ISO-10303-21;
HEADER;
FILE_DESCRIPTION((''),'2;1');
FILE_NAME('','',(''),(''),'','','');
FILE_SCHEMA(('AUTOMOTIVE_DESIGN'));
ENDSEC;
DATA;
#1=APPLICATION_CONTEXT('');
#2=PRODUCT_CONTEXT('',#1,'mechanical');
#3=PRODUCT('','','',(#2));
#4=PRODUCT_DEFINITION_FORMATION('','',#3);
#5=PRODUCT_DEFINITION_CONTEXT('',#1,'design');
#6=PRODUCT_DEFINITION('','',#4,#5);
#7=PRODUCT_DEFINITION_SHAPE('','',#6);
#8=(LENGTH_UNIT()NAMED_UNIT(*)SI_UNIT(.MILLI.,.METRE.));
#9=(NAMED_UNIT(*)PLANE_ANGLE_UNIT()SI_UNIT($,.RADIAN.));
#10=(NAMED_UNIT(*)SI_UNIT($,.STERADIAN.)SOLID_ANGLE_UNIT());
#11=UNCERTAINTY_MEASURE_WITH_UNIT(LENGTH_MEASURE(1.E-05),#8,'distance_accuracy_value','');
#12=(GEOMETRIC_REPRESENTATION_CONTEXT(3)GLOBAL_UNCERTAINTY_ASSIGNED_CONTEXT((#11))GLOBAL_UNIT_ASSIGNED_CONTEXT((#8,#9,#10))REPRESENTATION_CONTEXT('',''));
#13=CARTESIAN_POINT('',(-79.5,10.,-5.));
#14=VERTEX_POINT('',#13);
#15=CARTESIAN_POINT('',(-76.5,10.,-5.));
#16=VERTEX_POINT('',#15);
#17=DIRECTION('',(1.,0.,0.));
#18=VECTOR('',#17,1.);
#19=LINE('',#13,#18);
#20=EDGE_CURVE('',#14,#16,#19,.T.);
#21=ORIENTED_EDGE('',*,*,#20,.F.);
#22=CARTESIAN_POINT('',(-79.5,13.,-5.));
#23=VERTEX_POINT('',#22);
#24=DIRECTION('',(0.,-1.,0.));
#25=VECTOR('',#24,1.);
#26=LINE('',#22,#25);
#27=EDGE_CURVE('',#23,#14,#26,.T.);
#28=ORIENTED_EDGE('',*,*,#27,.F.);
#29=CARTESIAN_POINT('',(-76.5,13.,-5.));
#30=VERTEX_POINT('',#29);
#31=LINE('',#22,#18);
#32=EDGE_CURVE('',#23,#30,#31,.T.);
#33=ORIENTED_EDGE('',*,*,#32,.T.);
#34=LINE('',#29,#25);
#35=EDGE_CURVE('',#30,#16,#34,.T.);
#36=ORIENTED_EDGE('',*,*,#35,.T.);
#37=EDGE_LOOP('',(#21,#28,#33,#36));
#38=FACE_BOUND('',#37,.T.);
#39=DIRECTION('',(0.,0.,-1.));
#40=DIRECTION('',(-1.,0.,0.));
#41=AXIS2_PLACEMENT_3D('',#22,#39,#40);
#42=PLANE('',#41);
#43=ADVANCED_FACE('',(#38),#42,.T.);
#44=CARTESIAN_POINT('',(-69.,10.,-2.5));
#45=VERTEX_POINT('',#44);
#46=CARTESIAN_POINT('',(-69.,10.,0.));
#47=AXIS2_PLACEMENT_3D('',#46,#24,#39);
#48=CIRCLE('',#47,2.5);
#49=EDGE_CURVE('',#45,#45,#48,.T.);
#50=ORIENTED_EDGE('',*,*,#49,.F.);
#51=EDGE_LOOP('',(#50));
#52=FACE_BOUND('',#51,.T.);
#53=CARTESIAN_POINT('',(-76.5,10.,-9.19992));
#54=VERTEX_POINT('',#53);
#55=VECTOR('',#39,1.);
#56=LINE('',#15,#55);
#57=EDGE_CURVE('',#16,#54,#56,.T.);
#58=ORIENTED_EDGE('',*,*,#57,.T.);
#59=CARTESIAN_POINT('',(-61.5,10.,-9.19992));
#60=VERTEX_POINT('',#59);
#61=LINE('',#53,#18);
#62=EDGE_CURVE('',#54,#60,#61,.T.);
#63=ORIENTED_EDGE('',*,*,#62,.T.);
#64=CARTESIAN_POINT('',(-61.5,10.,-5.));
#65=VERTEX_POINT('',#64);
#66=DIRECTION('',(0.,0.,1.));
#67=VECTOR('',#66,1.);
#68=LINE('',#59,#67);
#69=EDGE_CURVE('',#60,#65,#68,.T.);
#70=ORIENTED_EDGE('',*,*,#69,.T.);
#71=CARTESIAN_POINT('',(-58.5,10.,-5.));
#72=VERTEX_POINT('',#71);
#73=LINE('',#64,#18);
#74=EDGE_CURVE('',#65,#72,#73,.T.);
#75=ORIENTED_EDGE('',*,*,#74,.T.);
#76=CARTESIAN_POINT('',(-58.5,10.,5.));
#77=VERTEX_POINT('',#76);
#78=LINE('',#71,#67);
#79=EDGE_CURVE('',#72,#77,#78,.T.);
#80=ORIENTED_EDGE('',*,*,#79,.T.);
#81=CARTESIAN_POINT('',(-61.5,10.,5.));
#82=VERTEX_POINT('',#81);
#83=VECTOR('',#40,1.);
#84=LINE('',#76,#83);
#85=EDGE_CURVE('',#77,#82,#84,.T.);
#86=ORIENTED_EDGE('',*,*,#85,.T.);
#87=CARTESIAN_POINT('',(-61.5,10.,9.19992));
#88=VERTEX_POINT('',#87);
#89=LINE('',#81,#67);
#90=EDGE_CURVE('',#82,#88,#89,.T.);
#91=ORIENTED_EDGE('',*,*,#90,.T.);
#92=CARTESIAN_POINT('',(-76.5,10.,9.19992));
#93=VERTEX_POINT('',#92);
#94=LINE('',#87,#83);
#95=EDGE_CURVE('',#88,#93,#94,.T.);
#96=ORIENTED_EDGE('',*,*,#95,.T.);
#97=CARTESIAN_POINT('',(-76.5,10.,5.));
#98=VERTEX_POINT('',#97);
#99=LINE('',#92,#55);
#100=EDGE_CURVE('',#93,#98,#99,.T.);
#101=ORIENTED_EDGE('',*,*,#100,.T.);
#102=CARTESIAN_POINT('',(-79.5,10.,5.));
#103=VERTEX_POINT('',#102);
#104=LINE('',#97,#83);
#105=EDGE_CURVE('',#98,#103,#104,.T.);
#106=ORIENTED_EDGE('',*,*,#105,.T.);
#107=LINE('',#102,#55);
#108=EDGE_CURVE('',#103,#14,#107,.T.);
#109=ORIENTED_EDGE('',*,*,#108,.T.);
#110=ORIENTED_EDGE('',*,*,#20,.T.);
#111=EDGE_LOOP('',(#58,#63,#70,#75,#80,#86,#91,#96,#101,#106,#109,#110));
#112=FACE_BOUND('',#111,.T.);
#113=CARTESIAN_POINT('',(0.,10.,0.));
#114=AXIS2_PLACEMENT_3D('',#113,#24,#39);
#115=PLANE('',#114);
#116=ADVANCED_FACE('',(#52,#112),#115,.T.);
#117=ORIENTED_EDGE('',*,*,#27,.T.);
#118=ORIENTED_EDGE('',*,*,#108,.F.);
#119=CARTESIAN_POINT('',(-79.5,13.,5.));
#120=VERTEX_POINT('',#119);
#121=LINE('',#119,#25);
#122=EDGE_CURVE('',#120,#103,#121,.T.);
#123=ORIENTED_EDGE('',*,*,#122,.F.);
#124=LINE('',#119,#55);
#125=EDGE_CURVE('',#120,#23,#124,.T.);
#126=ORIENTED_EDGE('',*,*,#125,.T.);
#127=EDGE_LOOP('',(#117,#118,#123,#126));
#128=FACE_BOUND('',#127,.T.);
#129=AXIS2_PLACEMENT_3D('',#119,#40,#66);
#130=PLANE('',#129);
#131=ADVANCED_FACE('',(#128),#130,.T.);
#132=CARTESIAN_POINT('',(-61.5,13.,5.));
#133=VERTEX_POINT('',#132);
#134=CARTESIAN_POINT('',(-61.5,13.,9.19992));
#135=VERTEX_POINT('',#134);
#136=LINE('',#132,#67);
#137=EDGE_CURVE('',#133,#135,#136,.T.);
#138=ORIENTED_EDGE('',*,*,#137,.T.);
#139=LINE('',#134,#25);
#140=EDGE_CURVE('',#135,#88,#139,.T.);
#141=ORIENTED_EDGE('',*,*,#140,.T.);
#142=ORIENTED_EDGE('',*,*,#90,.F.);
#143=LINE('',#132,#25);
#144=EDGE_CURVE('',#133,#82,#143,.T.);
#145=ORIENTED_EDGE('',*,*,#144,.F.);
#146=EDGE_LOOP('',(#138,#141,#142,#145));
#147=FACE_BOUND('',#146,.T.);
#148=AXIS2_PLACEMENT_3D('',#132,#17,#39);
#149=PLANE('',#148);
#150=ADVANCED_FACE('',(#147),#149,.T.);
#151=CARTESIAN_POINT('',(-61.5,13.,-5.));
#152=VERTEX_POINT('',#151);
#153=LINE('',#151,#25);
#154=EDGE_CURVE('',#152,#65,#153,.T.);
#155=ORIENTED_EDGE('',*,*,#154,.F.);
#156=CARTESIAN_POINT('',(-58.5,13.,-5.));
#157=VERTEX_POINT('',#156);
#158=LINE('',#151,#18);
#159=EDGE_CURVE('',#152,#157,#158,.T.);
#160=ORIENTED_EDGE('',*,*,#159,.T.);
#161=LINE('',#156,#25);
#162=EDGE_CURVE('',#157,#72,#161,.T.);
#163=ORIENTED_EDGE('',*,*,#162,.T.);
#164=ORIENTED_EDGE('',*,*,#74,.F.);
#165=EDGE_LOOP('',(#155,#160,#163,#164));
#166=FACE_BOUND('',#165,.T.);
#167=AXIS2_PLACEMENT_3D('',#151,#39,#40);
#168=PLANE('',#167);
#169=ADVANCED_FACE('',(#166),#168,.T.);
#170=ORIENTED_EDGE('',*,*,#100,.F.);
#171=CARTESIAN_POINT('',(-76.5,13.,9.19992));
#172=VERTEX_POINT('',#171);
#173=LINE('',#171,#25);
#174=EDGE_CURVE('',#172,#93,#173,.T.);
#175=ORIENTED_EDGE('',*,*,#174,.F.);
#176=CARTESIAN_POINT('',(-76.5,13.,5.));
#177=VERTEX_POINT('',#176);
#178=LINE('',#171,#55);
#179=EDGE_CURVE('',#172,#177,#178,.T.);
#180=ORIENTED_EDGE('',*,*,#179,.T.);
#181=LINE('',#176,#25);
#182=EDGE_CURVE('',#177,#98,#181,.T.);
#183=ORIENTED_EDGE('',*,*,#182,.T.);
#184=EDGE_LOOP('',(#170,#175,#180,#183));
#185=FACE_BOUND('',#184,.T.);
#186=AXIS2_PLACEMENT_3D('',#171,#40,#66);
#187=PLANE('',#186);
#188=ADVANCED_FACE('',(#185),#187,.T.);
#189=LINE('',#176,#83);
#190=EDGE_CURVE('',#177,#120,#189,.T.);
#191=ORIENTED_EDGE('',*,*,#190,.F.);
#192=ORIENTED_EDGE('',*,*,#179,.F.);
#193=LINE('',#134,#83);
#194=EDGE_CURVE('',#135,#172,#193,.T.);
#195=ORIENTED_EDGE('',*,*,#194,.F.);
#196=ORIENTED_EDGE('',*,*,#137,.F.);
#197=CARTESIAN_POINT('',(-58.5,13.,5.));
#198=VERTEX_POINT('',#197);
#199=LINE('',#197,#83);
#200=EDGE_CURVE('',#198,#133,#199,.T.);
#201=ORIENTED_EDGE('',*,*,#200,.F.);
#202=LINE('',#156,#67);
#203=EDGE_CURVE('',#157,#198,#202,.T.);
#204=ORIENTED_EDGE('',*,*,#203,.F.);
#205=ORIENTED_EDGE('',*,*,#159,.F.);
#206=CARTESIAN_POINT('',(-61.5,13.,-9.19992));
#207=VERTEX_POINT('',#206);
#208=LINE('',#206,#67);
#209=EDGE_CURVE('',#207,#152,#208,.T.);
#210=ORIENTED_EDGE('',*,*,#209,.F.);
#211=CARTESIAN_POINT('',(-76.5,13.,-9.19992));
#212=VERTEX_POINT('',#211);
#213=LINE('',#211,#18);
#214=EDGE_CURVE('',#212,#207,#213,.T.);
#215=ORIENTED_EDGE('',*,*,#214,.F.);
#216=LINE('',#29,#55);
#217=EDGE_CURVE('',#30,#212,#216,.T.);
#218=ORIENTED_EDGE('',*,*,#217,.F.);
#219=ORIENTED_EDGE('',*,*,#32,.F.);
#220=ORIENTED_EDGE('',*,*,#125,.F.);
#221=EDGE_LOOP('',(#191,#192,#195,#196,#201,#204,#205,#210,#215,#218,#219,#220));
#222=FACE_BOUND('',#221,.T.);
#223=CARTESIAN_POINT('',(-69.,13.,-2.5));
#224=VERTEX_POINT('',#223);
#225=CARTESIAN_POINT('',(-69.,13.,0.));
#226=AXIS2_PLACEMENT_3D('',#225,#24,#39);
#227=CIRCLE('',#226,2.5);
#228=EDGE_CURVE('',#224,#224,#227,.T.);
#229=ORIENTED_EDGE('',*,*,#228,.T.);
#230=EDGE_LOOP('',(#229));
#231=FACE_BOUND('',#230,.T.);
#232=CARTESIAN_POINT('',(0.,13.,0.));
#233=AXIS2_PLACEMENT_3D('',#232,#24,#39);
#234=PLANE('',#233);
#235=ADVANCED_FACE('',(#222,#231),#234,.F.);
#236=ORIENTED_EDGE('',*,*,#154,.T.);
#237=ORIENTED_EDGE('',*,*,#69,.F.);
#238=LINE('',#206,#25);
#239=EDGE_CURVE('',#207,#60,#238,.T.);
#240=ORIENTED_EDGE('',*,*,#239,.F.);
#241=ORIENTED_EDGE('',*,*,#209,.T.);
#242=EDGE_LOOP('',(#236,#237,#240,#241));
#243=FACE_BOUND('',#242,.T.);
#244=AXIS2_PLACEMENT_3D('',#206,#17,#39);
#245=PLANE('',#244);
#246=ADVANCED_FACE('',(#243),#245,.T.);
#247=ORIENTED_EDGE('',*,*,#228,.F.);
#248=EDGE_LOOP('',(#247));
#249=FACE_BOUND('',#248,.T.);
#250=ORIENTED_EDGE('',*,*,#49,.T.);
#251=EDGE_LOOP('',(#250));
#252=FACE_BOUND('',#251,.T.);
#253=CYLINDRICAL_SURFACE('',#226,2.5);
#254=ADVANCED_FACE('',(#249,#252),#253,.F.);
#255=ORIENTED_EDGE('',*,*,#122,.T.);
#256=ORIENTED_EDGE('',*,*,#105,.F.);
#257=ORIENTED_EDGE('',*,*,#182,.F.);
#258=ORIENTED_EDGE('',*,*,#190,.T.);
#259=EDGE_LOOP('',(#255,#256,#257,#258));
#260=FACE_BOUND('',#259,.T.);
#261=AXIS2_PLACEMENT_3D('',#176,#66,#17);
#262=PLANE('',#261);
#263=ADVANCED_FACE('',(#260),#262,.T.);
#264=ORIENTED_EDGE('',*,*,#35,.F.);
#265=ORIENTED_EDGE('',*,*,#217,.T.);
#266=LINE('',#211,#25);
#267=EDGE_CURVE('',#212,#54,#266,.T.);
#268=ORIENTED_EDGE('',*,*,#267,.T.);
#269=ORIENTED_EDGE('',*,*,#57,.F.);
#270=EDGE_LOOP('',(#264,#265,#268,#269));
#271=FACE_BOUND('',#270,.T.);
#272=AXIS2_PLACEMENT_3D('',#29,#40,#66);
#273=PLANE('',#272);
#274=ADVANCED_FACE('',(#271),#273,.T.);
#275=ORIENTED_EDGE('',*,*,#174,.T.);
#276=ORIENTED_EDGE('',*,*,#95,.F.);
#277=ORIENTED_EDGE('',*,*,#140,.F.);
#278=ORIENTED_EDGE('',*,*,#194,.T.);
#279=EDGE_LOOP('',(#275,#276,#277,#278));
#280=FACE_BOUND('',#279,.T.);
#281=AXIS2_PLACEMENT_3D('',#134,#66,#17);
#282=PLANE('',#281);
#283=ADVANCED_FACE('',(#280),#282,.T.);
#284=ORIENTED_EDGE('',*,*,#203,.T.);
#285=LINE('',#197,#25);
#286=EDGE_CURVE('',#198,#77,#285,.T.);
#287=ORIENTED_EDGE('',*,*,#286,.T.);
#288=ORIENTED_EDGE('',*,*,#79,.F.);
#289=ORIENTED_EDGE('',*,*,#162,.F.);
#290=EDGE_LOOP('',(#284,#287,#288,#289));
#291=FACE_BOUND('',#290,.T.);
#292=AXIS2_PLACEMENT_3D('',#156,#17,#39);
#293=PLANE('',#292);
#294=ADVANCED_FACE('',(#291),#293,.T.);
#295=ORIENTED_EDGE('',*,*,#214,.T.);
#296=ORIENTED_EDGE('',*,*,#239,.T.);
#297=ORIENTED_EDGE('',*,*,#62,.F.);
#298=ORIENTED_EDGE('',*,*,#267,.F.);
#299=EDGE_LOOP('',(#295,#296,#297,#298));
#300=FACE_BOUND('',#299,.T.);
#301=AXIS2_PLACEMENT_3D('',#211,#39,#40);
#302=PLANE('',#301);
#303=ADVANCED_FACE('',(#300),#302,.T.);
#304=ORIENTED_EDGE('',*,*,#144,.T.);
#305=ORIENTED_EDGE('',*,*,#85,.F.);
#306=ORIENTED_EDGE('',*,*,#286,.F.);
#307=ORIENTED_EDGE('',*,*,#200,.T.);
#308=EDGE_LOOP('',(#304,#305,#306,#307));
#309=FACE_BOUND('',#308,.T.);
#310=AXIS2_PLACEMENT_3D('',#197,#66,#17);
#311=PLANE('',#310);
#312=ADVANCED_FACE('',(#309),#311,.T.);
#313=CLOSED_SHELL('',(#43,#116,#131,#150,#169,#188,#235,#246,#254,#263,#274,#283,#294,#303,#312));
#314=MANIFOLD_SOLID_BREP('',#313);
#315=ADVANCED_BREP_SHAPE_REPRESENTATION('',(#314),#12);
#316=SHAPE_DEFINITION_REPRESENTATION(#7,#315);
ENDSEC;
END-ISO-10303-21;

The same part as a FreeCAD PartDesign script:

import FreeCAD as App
import Part
import Sketcher
Q = App.Units.Quantity


def add_polygon(sketch, points):
    """Adds a closed chain of lines whose ends are joined by coincident constraints."""
    first, n = sketch.GeometryCount, len(points)
    for a, b in zip(points, points[1:] + points[:1]):
        sketch.addGeometry(Part.LineSegment(App.Vector(*a, 0), App.Vector(*b, 0)), False)
    for i in range(n):
        sketch.addConstraint(Sketcher.Constraint("Coincident", first + i, 2, first + (i + 1) % n, 1))

doc = App.newDocument("Part")
params = doc.addObject("Spreadsheet::Sheet", "Params")
for row, (alias, value) in enumerate([
    ("sketch1_diameter", "5 mm"),
    ("sketch1_width", "3 mm"),
    ("sketch1_width2", "15 mm"),
    ("sketch1_height", "10 mm"),
    ("pad1_length", "3 mm"),
], start=1):
    params.set(f"A{row}", alias)
    params.set(f"B{row}", "=" + value)
    params.setAlias(f"B{row}", alias)

body = doc.addObject("PartDesign::Body", "Body")

# Sketch on XZ plane
sketch1 = doc.addObject("Sketcher::SketchObject", "Sketch")
body.addObject(sketch1)
sketch1.AttachmentSupport = (doc.XZ_Plane, [""])
sketch1.MapMode = "FlatFace"
sketch1.AttachmentOffset = App.Placement(App.Vector(0, 0, -10), App.Rotation())
add_polygon(sketch1, [(-61.5, -9.19992), (-61.5, -5), (-58.5, -5), (-58.5, 5), (-61.5, 5), (-61.5, 9.19992), (-76.5, 9.19992), (-76.5, 5), (-79.5, 5), (-79.5, -5), (-76.5, -5), (-76.5, -9.19992)])  # lines 0-11
sketch1.addGeometry(Part.Circle(App.Vector(-69, 0, 0), App.Vector(0, 0, 1), 2.5), False)  # 12
sketch1.addConstraint(Sketcher.Constraint("Vertical", 0))
sketch1.addConstraint(Sketcher.Constraint("Horizontal", 1))
sketch1.addConstraint(Sketcher.Constraint("Vertical", 2))
sketch1.addConstraint(Sketcher.Constraint("Horizontal", 3))
sketch1.addConstraint(Sketcher.Constraint("Vertical", 4))
sketch1.addConstraint(Sketcher.Constraint("Horizontal", 5))
sketch1.addConstraint(Sketcher.Constraint("Vertical", 6))
sketch1.addConstraint(Sketcher.Constraint("Horizontal", 7))
sketch1.addConstraint(Sketcher.Constraint("Vertical", 8))
sketch1.addConstraint(Sketcher.Constraint("Horizontal", 9))
sketch1.addConstraint(Sketcher.Constraint("Vertical", 10))
sketch1.addConstraint(Sketcher.Constraint("Horizontal", 11))
sketch1.addConstraint(Sketcher.Constraint("Symmetric", 0, 2, 3, 2, -1))
sketch1.addConstraint(Sketcher.Constraint("Symmetric", 6, 2, 9, 2, -1))
sketch1.addConstraint(Sketcher.Constraint("PointOnObject", 12, 3, -1))
sketch1.addConstraint(Sketcher.Constraint("Horizontal", 3, 2, 6, 2))
sketch1.addConstraint(Sketcher.Constraint("Equal", 3, 7))
sketch1.addConstraint(Sketcher.Constraint("Equal", 0, 4))
sketch1.addConstraint(Sketcher.Constraint("Diameter", 12, Q("5 mm")))
sketch1.addConstraint(Sketcher.Constraint("DistanceX", 1, 1, 1, 2, Q("3 mm")))
sketch1.addConstraint(Sketcher.Constraint("DistanceX", 5, 2, 5, 1, Q("15 mm")))
sketch1.addConstraint(Sketcher.Constraint("DistanceY", 2, 1, 2, 2, Q("10 mm")))
sketch1.addConstraint(Sketcher.Constraint("DistanceX", 12, 3, -1, 1, Q("69 mm")))
sketch1.addConstraint(Sketcher.Constraint("DistanceX", 0, 2, -1, 1, Q("61.5 mm")))
sketch1.addConstraint(Sketcher.Constraint("DistanceY", 0, 1, 0, 2, Q("4.19992 mm")))
sketch1.setExpression("Constraints[30]", "Params.sketch1_diameter")
sketch1.setExpression("Constraints[31]", "Params.sketch1_width")
sketch1.setExpression("Constraints[32]", "Params.sketch1_width2")
sketch1.setExpression("Constraints[33]", "Params.sketch1_height")
pad1 = doc.addObject("PartDesign::Pad", "Pad")
body.addObject(pad1)
pad1.Profile = sketch1
pad1.setExpression("Length", "Params.pad1_length")
pad1.Reversed = True

doc.recompute()
